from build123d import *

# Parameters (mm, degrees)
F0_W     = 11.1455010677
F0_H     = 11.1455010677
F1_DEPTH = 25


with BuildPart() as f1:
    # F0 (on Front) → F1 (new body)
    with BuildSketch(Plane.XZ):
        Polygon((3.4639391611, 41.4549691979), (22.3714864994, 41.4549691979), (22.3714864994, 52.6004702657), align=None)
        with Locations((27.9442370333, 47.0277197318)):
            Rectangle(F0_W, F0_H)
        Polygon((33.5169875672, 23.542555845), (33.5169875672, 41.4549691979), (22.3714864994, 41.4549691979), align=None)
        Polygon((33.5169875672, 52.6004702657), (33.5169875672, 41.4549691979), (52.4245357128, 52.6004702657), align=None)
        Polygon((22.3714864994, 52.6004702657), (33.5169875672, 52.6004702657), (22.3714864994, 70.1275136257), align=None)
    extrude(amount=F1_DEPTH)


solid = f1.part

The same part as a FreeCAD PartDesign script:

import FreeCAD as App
import Part
import Sketcher
from FreeCAD import Vector


def add_polygon(sketch, points):
    """Adds a closed chain of lines whose ends are joined by coincident constraints."""
    first, n = sketch.GeometryCount, len(points)
    for a, b in zip(points, points[1:] + points[:1]):
        sketch.addGeometry(Part.LineSegment(App.Vector(*a, 0), App.Vector(*b, 0)), False)
    for i in range(n):
        sketch.addConstraint(Sketcher.Constraint("Coincident", first + i, 2, first + (i + 1) % n, 1))

doc = App.newDocument("Part")
params = doc.addObject("Spreadsheet::Sheet", "Params")
for row, (alias, value) in enumerate([
    ("pad1_length", "25 mm"),
], start=1):
    params.set(f"A{row}", alias)
    params.set(f"B{row}", "=" + value)
    params.setAlias(f"B{row}", alias)

body = doc.addObject("PartDesign::Body", "Body")

sketch1 = body.newObject("Sketcher::SketchObject", "Sketch")
sketch1.AttachmentSupport = (doc.getObject("XZ_Plane"), [""])
sketch1.MapMode = "FlatFace"
add_polygon(sketch1, [(3.463939, 41.454969), (22.371486, 41.454969), (33.516988, 23.542556), (33.516988, 41.454969), (52.424536, 52.60047), (33.516988, 52.60047), (22.371486, 70.127514), (22.371486, 52.60047)])
sketch1.addConstraint(Sketcher.Constraint("Horizontal", 0))
sketch1.addConstraint(Sketcher.Constraint("Vertical", 2))
sketch1.addConstraint(Sketcher.Constraint("Horizontal", 4))
sketch1.addConstraint(Sketcher.Constraint("Vertical", 6))
sketch1.addConstraint(Sketcher.Constraint("Parallel", 3, 7))
sketch1.addConstraint(Sketcher.Constraint("Horizontal", 0, 2, 2, 2))
sketch1.addConstraint(Sketcher.Constraint("Horizontal", 4, 2, 6, 2))
sketch1.addConstraint(Sketcher.Constraint("Vertical", 2, 2, 4, 2))
sketch1.addConstraint(Sketcher.Constraint("Vertical", 0, 2, 5, 2))
sketch1.addConstraint(Sketcher.Constraint("DistanceX", 4, 2, 4, 1, 18.907548))
sketch1.addConstraint(Sketcher.Constraint("DistanceX", 0, 2, 1, 2, 11.145501))
sketch1.addConstraint(Sketcher.Constraint("DistanceY", 2, 2, 3, 2, 11.145501))
sketch1.addConstraint(Sketcher.Constraint("Distance", 5, 20.770639))
sketch1.addConstraint(Sketcher.Constraint("DistanceY", 2, 1, 2, 2, 17.912413))
sketch1.addConstraint(Sketcher.Constraint("DistanceY", -1, 1, 0, 2, 41.454969))
sketch1.addConstraint(Sketcher.Constraint("DistanceX", -1, 1, 7, 2, 3.463939))
pad1 = body.newObject("PartDesign::Pad", "Pad")
pad1.Profile = sketch1
pad1.setExpression("Length", "Params.pad1_length")

doc.recompute()
